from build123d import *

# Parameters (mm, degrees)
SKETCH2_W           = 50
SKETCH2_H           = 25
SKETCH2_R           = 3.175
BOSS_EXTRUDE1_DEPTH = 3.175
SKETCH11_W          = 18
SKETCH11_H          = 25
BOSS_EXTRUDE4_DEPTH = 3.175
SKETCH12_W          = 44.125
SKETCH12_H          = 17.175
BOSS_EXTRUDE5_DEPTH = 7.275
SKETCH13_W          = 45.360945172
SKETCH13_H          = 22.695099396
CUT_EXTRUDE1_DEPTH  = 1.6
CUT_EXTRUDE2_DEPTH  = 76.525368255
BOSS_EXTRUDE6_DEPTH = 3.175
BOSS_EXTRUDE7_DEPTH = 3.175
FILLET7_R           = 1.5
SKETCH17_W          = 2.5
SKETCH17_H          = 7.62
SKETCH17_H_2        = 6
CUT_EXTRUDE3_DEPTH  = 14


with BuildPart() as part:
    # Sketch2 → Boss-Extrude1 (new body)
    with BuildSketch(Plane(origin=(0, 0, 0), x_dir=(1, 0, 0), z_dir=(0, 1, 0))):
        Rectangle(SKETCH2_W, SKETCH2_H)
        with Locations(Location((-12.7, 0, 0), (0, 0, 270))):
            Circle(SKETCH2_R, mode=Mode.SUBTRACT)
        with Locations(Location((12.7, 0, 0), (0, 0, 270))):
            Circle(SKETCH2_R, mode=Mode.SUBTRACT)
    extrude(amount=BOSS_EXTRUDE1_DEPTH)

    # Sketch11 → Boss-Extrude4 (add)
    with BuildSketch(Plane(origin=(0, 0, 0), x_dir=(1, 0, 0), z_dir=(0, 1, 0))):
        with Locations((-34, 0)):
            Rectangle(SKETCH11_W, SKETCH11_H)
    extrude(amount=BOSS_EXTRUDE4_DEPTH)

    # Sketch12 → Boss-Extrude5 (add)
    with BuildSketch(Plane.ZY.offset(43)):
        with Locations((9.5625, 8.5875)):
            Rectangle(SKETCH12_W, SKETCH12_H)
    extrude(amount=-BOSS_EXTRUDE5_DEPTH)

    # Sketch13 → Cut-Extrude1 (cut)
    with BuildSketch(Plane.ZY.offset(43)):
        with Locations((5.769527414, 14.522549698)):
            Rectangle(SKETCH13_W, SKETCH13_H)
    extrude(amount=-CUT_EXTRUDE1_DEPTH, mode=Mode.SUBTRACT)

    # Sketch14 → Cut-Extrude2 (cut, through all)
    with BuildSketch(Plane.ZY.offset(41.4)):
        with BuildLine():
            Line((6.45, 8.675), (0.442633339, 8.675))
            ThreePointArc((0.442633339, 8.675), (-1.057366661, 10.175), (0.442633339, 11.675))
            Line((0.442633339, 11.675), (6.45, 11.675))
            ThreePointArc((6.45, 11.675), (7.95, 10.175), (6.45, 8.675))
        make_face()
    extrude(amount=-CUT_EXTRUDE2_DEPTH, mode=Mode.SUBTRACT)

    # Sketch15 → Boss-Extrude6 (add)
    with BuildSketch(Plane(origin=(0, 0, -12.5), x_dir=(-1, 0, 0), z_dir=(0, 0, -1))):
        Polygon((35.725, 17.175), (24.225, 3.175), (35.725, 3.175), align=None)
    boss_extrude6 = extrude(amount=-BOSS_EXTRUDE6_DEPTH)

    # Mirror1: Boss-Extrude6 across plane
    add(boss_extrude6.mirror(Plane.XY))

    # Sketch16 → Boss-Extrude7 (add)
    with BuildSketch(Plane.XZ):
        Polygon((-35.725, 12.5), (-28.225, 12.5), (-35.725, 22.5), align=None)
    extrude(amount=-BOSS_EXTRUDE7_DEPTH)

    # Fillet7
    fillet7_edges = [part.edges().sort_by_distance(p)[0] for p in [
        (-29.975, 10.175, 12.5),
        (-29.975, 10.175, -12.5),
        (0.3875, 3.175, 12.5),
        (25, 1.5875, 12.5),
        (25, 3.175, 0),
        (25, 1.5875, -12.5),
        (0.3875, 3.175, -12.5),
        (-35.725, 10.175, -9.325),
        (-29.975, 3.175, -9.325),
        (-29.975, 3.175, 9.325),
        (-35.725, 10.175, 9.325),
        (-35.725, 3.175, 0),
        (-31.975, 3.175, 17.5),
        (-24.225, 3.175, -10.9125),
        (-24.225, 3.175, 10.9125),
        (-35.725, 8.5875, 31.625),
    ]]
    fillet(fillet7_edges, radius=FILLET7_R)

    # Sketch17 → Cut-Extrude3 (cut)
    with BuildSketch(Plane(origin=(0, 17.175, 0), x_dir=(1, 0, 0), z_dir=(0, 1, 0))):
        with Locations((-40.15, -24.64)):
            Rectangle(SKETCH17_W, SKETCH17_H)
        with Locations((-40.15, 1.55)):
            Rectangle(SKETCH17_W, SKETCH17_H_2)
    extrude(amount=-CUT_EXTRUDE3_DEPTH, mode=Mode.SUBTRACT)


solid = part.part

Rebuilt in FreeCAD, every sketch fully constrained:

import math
import FreeCAD as App
import Part
import Sketcher
from FreeCAD import Vector
Q = App.Units.Quantity


def edges_at(feature, points):
    """Names of the edges that pass closest to the given points."""
    edges = feature.Shape.Edges
    near = lambda p: min(range(len(edges)), key=lambda i: edges[i].distToShape(Part.Vertex(*p))[0])
    return sorted({f"Edge{near(p) + 1}" for p in points})


def add_polygon(sketch, points):
    """Adds a closed chain of lines whose ends are joined by coincident constraints."""
    first, n = sketch.GeometryCount, len(points)
    for a, b in zip(points, points[1:] + points[:1]):
        sketch.addGeometry(Part.LineSegment(App.Vector(*a, 0), App.Vector(*b, 0)), False)
    for i in range(n):
        sketch.addConstraint(Sketcher.Constraint("Coincident", first + i, 2, first + (i + 1) % n, 1))

doc = App.newDocument("Part")
body = doc.addObject("PartDesign::Body", "Body")

# Sketch on XZ plane
sketch1 = body.newObject("Sketcher::SketchObject", "Sketch")
sketch1.AttachmentSupport = (doc.getObject("XZ_Plane"), [""])
sketch1.MapMode = "FlatFace"
add_polygon(sketch1, [(-25, -12.5), (-25, 12.5), (25, 12.5), (25, -12.5)])  # lines 0-3
sketch1.addGeometry(Part.Circle(Vector(-12.7, 0, 0), Vector(0, 0, 1), 3.2), False)  # 4
sketch1.addGeometry(Part.Circle(Vector(12.7, 0, 0), Vector(0, 0, 1), 3.2), False)  # 5
sketch1.addConstraint([
    Sketcher.Constraint("Vertical", 0),
    Sketcher.Constraint("Horizontal", 1),
    Sketcher.Constraint("Vertical", 2),
    Sketcher.Constraint("Horizontal", 3),
    Sketcher.Constraint("Equal", 4, 5),
    Sketcher.Constraint("Symmetric", 4, 3, 5, 3, -1, 1),
    Sketcher.Constraint("Symmetric", 0, 2, 2, 2, -1, 1),
    Sketcher.Constraint("PointOnObject", 4, 3, -1),
    Sketcher.Constraint("Diameter", 4, Q("6.35 mm")),
    Sketcher.Constraint("DistanceX", 1, 1, 1, 2, Q("50 mm")),
    Sketcher.Constraint("DistanceY", 0, 1, 0, 2, Q("25 mm")),
    Sketcher.Constraint("DistanceX", 4, 3, -1, 1, Q("12.7 mm")),
])
pad1 = body.newObject("PartDesign::Pad", "Pad")
pad1.Profile = sketch1
pad1.Length = 3.175
pad1.Reversed = True

# Sketch on XZ plane
sketch2 = body.newObject("Sketcher::SketchObject", "Sketch001")
sketch2.AttachmentSupport = (doc.getObject("XZ_Plane"), [""])
sketch2.MapMode = "FlatFace"
add_polygon(sketch2, [(-43, -12), (-43, 12), (-25, 12), (-25, -12)])  # lines 0-3
sketch2.addConstraint([
    Sketcher.Constraint("Vertical", 0),
    Sketcher.Constraint("Horizontal", 1),
    Sketcher.Constraint("Vertical", 2),
    Sketcher.Constraint("Horizontal", 3),
    Sketcher.Constraint("DistanceX", 1, 1, 1, 2, Q("18 mm")),
    Sketcher.Constraint("DistanceY", 0, 1, 0, 2, Q("25 mm")),
    Sketcher.Constraint("DistanceX", 0, 2, -1, 1, Q("43 mm")),
    Sketcher.Constraint("DistanceY", -1, 1, 0, 2, Q("12.5 mm")),
])
pad2 = body.newObject("PartDesign::Pad", "Pad001")
pad2.Profile = sketch2
pad2.Length = 3.175
pad2.Reversed = True

# Sketch on YZ plane
sketch3 = body.newObject("Sketcher::SketchObject", "Sketch002")
sketch3.AttachmentSupport = (doc.getObject("YZ_Plane"), [""])
sketch3.MapMode = "FlatFace"
sketch3.AttachmentOffset = App.Placement(Vector(0, 0, -43), App.Rotation())
add_polygon(sketch3, [(17, -12), (0, -12), (0, 32), (17, 32)])  # lines 0-3
sketch3.addConstraint([
    Sketcher.Constraint("Horizontal", 0),
    Sketcher.Constraint("Vertical", 1),
    Sketcher.Constraint("Horizontal", 2),
    Sketcher.Constraint("Vertical", 3),
    Sketcher.Constraint("PointOnObject", 0, 2, -2),
    Sketcher.Constraint("DistanceY", 0, 2, -1, 1, Q("12.5 mm")),
    Sketcher.Constraint("DistanceX", 0, 2, 0, 1, Q("17.175 mm")),
    Sketcher.Constraint("DistanceY", 1, 1, 1, 2, Q("44.125 mm")),
])
pad3 = body.newObject("PartDesign::Pad", "Pad002")
pad3.Profile = sketch3
pad3.Length = 7.275

# Sketch on YZ plane
sketch4 = body.newObject("Sketcher::SketchObject", "Sketch003")
sketch4.AttachmentSupport = (doc.getObject("YZ_Plane"), [""])
sketch4.MapMode = "FlatFace"
sketch4.AttachmentOffset = App.Placement(Vector(0, 0, -43), App.Rotation())
add_polygon(sketch4, [(26, -17), (3, -17), (3, 28), (26, 28)])  # lines 0-3
sketch4.addConstraint([
    Sketcher.Constraint("Horizontal", 0),
    Sketcher.Constraint("Vertical", 1),
    Sketcher.Constraint("Horizontal", 2),
    Sketcher.Constraint("Vertical", 3),
    Sketcher.Constraint("DistanceY", -1, 1, 1, 2, Q("28.45 mm")),
    Sketcher.Constraint("DistanceX", 0, 2, 0, 1, Q("22.695099 mm")),
    Sketcher.Constraint("DistanceX", -1, 1, 0, 2, Q("3.175 mm")),
    Sketcher.Constraint("DistanceY", 1, 1, 1, 2, Q("45.360945 mm")),
])
pocket1 = body.newObject("PartDesign::Pocket", "Pocket")
pocket1.Profile = sketch4
pocket1.Length = 1.6
pocket1.Reversed = True

# Sketch on YZ plane
sketch5 = body.newObject("Sketcher::SketchObject", "Sketch004")
sketch5.AttachmentSupport = (doc.getObject("YZ_Plane"), [""])
sketch5.MapMode = "FlatFace"
sketch5.AttachmentOffset = App.Placement(Vector(0, 0, -41.4), App.Rotation())
sketch5.addGeometry([
    Part.LineSegment(Vector(8.7, 0.4, 0), Vector(8.7, 6.5, 0)),
    Part.ArcOfCircle(Part.Circle(Vector(10.2, 6.5, 0), Vector(0, 0, 1), 1.5), math.radians(0), math.radians(180)),
    Part.LineSegment(Vector(11.7, 6.5, 0), Vector(11.7, 0.4, 0)),
    Part.ArcOfCircle(Part.Circle(Vector(10.2, 0.4, 0), Vector(0, 0, 1), 1.5), math.radians(180), math.radians(360)),
], False)
sketch5.addConstraint([
    Sketcher.Constraint("Tangent", 0, 2, 1, 2),
    Sketcher.Constraint("Tangent", 1, 1, 2, 1),
    Sketcher.Constraint("Tangent", 2, 2, 3, 2),
    Sketcher.Constraint("Tangent", 3, 1, 0, 1),
    Sketcher.Constraint("Vertical", 0),
    Sketcher.Constraint("Vertical", 2),
    Sketcher.Constraint("Radius", 1, Q("1.5 mm")),
    Sketcher.Constraint("DistanceY", -1, 1, 1, 3, Q("6.45 mm")),
    Sketcher.Constraint("DistanceX", -1, 1, 1, 3, Q("10.175 mm")),
    Sketcher.Constraint("DistanceY", 0, 1, 0, 2, Q("6.007367 mm")),
])
pocket2 = body.newObject("PartDesign::Pocket", "Pocket001")
pocket2.Profile = sketch5
pocket2.Type = "ThroughAll"
pocket2.Reversed = True

# Sketch on XY plane
sketch6 = body.newObject("Sketcher::SketchObject", "Sketch005")
sketch6.AttachmentSupport = (doc.getObject("XY_Plane"), [""])
sketch6.MapMode = "FlatFace"
sketch6.AttachmentOffset = App.Placement(Vector(0, 0, -12.5), App.Rotation())
add_polygon(sketch6, [(-36, 17), (-24, 3), (-36, 3)])  # lines 0-2
sketch6.addConstraint([
    Sketcher.Constraint("Horizontal", 1),
    Sketcher.Constraint("Vertical", 2),
    Sketcher.Constraint("DistanceY", 2, 1, 2, 2, Q("14 mm")),
    Sketcher.Constraint("DistanceX", 1, 2, 1, 1, Q("11.5 mm")),
    Sketcher.Constraint("DistanceX", 0, 2, -1, 1, Q("24.225 mm")),
    Sketcher.Constraint("DistanceY", -1, 1, 0, 2, Q("3.175 mm")),
])
pad4 = body.newObject("PartDesign::Pad", "Pad003")
pad4.Profile = sketch6
pad4.Length = 3.175
doc.recompute()

mirrored = body.newObject("PartDesign::Mirrored", "Mirrored")
mirrored.Originals = [pad4]
mirrored.MirrorPlane = (doc.getObject("XY_Plane"), [""])
body.Tip = mirrored

# Sketch on XZ plane
sketch7 = body.newObject("Sketcher::SketchObject", "Sketch006")
sketch7.AttachmentSupport = (doc.getObject("XZ_Plane"), [""])
sketch7.MapMode = "FlatFace"
add_polygon(sketch7, [(-36, 12), (-28, 12), (-36, 22)])  # lines 0-2
sketch7.addConstraint([
    Sketcher.Constraint("Horizontal", 0),
    Sketcher.Constraint("Vertical", 2),
    Sketcher.Constraint("DistanceY", 2, 2, 2, 1, Q("10 mm")),
    Sketcher.Constraint("DistanceX", 0, 1, 0, 2, Q("7.5 mm")),
    Sketcher.Constraint("DistanceY", -1, 1, 0, 2, Q("12.5 mm")),
    Sketcher.Constraint("DistanceX", 0, 2, -1, 1, Q("28.225 mm")),
])
pad5 = body.newObject("PartDesign::Pad", "Pad004")
pad5.Profile = sketch7
pad5.Length = 3.175
pad5.Reversed = True
doc.recompute()

fillet = body.newObject("PartDesign::Fillet", "Fillet")
fillet.Base = (pad5, edges_at(pad5, [
    (-29.975, 10.175, 12.5),
    (-29.975, 10.175, -12.5),
    (0.388, 3.175, 12.5),
    (25, 1.587, 12.5),
    (25, 3.175, 0),
    (25, 1.587, -12.5),
    (0.388, 3.175, -12.5),
    (-35.725, 10.175, -9.325),
    (-29.975, 3.175, -9.325),
    (-29.975, 3.175, 9.325),
    (-35.725, 10.175, 9.325),
    (-35.725, 3.175, 0),
    (-31.975, 3.175, 17.5),
    (-24.225, 3.175, -10.912),
    (-24.225, 3.175, 10.912),
    (-35.725, 8.588, 31.625),
]))
fillet.Radius = 1.5

# Sketch on XZ plane
sketch8 = body.newObject("Sketcher::SketchObject", "Sketch007")
sketch8.AttachmentSupport = (doc.getObject("XZ_Plane"), [""])
sketch8.MapMode = "FlatFace"
sketch8.AttachmentOffset = App.Placement(Vector(0, 0, -17.175), App.Rotation())
add_polygon(sketch8, [(-41.4, 20.8), (-41.4, 28.4), (-38.9, 28.4), (-38.9, 20.8)])  # lines 0-3
add_polygon(sketch8, [(-41.4, -4.5), (-41.4, 1.4), (-38.9, 1.4), (-38.9, -4.5)])  # lines 4-7
sketch8.addConstraint([
    Sketcher.Constraint("Vertical", 0),
    Sketcher.Constraint("Horizontal", 1),
    Sketcher.Constraint("Vertical", 2),
    Sketcher.Constraint("Horizontal", 3),
    Sketcher.Constraint("Vertical", 4),
    Sketcher.Constraint("Horizontal", 5),
    Sketcher.Constraint("Vertical", 6),
    Sketcher.Constraint("Horizontal", 7),
    Sketcher.Constraint("Vertical", 3, 2, 4, 2),
    Sketcher.Constraint("Vertical", 2, 2, 5, 2),
    Sketcher.Constraint("DistanceY", 4, 1, 4, 2, Q("6 mm")),
    Sketcher.Constraint("DistanceX", 1, 1, 1, 2, Q("2.5 mm")),
    Sketcher.Constraint("DistanceY", 4, 2, 0, 2, Q("27 mm")),
    Sketcher.Constraint("DistanceY", 0, 1, 0, 2, Q("7.62 mm")),
    Sketcher.Constraint("DistanceX", 0, 2, -1, 1, Q("41.4 mm")),
    Sketcher.Constraint("DistanceY", -1, 1, 0, 2, Q("28.45 mm")),
])
pocket3 = body.newObject("PartDesign::Pocket", "Pocket002")
pocket3.Profile = sketch8
pocket3.Length = 14
pocket3.Reversed = True

doc.recompute()
